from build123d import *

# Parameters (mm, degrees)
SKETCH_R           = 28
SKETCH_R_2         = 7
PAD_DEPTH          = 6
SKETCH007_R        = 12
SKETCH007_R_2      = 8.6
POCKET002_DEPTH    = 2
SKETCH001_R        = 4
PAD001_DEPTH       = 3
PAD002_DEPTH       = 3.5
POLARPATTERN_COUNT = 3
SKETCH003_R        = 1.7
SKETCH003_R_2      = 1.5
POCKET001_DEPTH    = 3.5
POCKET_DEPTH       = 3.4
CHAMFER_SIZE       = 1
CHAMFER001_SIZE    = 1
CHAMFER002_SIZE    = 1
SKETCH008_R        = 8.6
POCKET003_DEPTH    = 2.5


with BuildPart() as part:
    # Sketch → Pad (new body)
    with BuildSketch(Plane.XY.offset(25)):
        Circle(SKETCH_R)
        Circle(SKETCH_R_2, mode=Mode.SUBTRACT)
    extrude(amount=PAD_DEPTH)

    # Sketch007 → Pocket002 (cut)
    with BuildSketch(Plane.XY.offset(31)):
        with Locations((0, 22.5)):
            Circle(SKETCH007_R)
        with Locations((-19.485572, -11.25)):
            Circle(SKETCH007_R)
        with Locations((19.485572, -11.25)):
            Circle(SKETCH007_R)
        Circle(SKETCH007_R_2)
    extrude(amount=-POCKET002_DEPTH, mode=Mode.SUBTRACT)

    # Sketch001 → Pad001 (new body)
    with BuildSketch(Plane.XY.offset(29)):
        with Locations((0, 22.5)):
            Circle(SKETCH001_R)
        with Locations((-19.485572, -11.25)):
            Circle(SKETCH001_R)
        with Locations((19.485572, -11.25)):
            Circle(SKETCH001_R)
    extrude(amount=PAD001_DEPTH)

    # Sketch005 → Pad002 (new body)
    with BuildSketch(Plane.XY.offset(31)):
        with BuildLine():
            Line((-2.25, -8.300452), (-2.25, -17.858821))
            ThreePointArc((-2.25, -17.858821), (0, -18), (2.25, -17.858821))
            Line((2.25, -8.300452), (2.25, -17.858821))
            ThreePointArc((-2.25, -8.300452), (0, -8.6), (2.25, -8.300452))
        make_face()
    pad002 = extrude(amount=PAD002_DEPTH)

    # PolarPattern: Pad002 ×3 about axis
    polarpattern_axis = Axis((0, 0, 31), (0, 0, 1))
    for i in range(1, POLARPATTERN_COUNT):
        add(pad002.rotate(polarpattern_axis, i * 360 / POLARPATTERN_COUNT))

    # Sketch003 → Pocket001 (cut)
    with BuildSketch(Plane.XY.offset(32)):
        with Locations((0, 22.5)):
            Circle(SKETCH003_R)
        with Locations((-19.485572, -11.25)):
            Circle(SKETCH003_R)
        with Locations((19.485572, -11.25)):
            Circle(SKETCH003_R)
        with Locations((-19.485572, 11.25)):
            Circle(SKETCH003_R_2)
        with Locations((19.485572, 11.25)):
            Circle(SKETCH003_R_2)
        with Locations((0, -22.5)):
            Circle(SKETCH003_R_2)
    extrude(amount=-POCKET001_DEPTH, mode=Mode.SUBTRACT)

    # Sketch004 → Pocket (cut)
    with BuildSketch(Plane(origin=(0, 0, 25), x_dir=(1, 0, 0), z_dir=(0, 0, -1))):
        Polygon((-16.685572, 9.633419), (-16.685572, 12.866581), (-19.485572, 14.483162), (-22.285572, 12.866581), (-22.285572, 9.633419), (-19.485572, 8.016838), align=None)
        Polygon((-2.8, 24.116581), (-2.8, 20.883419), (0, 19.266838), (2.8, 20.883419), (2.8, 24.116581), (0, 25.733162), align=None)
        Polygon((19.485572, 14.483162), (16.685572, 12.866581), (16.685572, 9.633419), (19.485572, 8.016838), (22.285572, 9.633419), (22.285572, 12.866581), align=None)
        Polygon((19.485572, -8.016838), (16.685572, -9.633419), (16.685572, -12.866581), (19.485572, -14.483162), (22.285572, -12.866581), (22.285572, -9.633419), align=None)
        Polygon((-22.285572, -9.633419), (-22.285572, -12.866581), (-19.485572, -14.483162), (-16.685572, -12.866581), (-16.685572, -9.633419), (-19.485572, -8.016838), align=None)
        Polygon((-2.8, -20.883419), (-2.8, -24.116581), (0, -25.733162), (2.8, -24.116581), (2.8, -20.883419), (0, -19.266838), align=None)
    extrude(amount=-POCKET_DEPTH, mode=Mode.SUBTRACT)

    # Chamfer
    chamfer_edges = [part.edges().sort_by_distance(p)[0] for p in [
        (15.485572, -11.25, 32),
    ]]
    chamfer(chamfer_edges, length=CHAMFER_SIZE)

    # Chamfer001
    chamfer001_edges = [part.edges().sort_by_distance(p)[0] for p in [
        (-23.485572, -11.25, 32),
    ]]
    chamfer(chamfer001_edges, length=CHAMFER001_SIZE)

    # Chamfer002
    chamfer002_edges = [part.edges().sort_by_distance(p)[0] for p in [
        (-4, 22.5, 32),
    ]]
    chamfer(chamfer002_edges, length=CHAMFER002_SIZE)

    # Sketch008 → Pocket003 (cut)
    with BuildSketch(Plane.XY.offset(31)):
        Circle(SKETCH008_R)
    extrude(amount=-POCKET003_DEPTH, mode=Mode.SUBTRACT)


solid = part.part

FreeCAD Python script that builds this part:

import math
import FreeCAD as App
import Part
import Sketcher
from FreeCAD import Vector
Q = App.Units.Quantity


def edges_at(feature, points):
    """Names of the edges that pass closest to the given points."""
    edges = feature.Shape.Edges
    near = lambda p: min(range(len(edges)), key=lambda i: edges[i].distToShape(Part.Vertex(*p))[0])
    return sorted({f"Edge{near(p) + 1}" for p in points})

doc = App.newDocument("Part")
params = doc.addObject("Spreadsheet::Sheet", "Params")
for row, (alias, value) in enumerate([
    ("sketch1_diameter", "56 mm"),
    ("sketch1_diameter2", "14 mm"),
    ("pad1_length", "6 mm"),
    ("sketch2_diameter", "24 mm"),
    ("sketch2_diameter2", "17.2 mm"),
    ("pocket1_length", "2 mm"),
    ("sketch3_diameter", "8 mm"),
    ("pad2_length", "3 mm"),
    ("pad3_length", "3.5 mm"),
    ("sketch5_diameter", "3 mm"),
    ("sketch5_diameter2", "3.4 mm"),
    ("pocket2_length", "3.5 mm"),
    ("pocket3_length", "3.4 mm"),
    ("chamfer_size", "1 mm"),
    ("chamfer2_size", "1 mm"),
    ("chamfer3_size", "1 mm"),
    ("sketch7_diameter", "17.2 mm"),
    ("pocket4_length", "2.5 mm"),
], start=1):
    params.set(f"A{row}", alias)
    params.set(f"B{row}", "=" + value)
    params.setAlias(f"B{row}", alias)

body = doc.addObject("PartDesign::Body", "Body")

sketch1 = doc.addObject("Sketcher::SketchObject", "Sketch")
body.addObject(sketch1)
sketch1.AttachmentSupport = (doc.XY_Plane, [""])
sketch1.MapMode = "FlatFace"
sketch1.AttachmentOffset = App.Placement(Vector(0, 0, 25), App.Rotation())
sketch1.addGeometry([
    Part.Circle(Vector(0, 0, 0), Vector(0, 0, 1), 28),
    Part.Circle(Vector(0, 0, 0), Vector(0, 0, 1), 7),
], False)
sketch1.addConstraint([
    Sketcher.Constraint("Coincident", 0, 3, -1, 1),
    Sketcher.Constraint("Coincident", 1, 3, -1, 1),
    Sketcher.Constraint("Diameter", 0, 56.0),
    Sketcher.Constraint("Diameter", 1, 14.0),
])
sketch1.setExpression("Constraints[2]", "Params.sketch1_diameter")
sketch1.setExpression("Constraints[3]", "Params.sketch1_diameter2")
pad1 = doc.addObject("PartDesign::Pad", "Pad")
body.addObject(pad1)
pad1.Profile = sketch1
pad1.setExpression("Length", "Params.pad1_length")

sketch2 = doc.addObject("Sketcher::SketchObject", "Sketch001")
body.addObject(sketch2)
sketch2.AttachmentSupport = (doc.XY_Plane, [""])
sketch2.MapMode = "FlatFace"
sketch2.AttachmentOffset = App.Placement(Vector(0, 0, 31), App.Rotation())
sketch2.addGeometry([
    Part.Circle(Vector(0, 22.5, 0), Vector(0, 0, 1), 12),
    Part.Circle(Vector(-19.485572, -11.25, 0), Vector(0, 0, 1), 12),
    Part.Circle(Vector(19.485572, -11.25, 0), Vector(0, 0, 1), 12),
    Part.Circle(Vector(0, 0, 0), Vector(0, 0, 1), 8.6),
], False)
sketch2.addConstraint([
    Sketcher.Constraint("Coincident", 3, 3, -1, 1),
    Sketcher.Constraint("Equal", 0, 1),
    Sketcher.Constraint("Equal", 1, 2),
    Sketcher.Constraint("Symmetric", 1, 3, 2, 3, -2),
    Sketcher.Constraint("PointOnObject", 0, 3, -2),
    Sketcher.Constraint("Diameter", 0, 24.0),
    Sketcher.Constraint("Diameter", 3, 17.2),
    Sketcher.Constraint("DistanceY", -1, 1, 0, 3, 22.5),
    Sketcher.Constraint("DistanceY", 1, 3, -1, 1, 11.25),
    Sketcher.Constraint("DistanceX", 1, 3, -1, 1, 19.485572),
])
sketch2.setExpression("Constraints[5]", "Params.sketch2_diameter")
sketch2.setExpression("Constraints[6]", "Params.sketch2_diameter2")
pocket1 = doc.addObject("PartDesign::Pocket", "Pocket")
body.addObject(pocket1)
pocket1.Profile = sketch2
pocket1.setExpression("Length", "Params.pocket1_length")

sketch3 = doc.addObject("Sketcher::SketchObject", "Sketch002")
body.addObject(sketch3)
sketch3.AttachmentSupport = (doc.XY_Plane, [""])
sketch3.MapMode = "FlatFace"
sketch3.AttachmentOffset = App.Placement(Vector(0, 0, 29), App.Rotation())
sketch3.addGeometry([
    Part.Circle(Vector(0, 22.5, 0), Vector(0, 0, 1), 4),
    Part.Circle(Vector(-19.485572, -11.25, 0), Vector(0, 0, 1), 4),
    Part.Circle(Vector(19.485572, -11.25, 0), Vector(0, 0, 1), 4),
], False)
sketch3.addConstraint([
    Sketcher.Constraint("Equal", 0, 1),
    Sketcher.Constraint("Equal", 1, 2),
    Sketcher.Constraint("Symmetric", 1, 3, 2, 3, -2),
    Sketcher.Constraint("PointOnObject", 0, 3, -2),
    Sketcher.Constraint("Diameter", 0, 8.0),
    Sketcher.Constraint("DistanceY", -1, 1, 0, 3, 22.5),
    Sketcher.Constraint("DistanceY", 1, 3, -1, 1, 11.25),
    Sketcher.Constraint("DistanceX", 1, 3, -1, 1, 19.485572),
])
sketch3.setExpression("Constraints[4]", "Params.sketch3_diameter")
pad2 = doc.addObject("PartDesign::Pad", "Pad001")
body.addObject(pad2)
pad2.Profile = sketch3
pad2.setExpression("Length", "Params.pad2_length")

sketch4 = doc.addObject("Sketcher::SketchObject", "Sketch003")
body.addObject(sketch4)
sketch4.AttachmentSupport = (doc.XY_Plane, [""])
sketch4.MapMode = "FlatFace"
sketch4.AttachmentOffset = App.Placement(Vector(0, 0, 31), App.Rotation())
sketch4.addGeometry([
    Part.LineSegment(Vector(-2.25, -8.300452, 0), Vector(-2.25, -17.858821, 0)),
    Part.ArcOfCircle(Part.Circle(Vector(0, -0.000044, 0), Vector(0, 0, 1), 17.999956), math.radians(-97.180774), math.radians(-82.819226)),
    Part.LineSegment(Vector(2.25, -17.858821, 0), Vector(2.25, -8.300452, 0)),
    Part.ArcOfCircle(Part.Circle(Vector(0, 0.000006, 0), Vector(0, 0, 1), 8.600006), math.radians(-105.166668), math.radians(-74.833332)),
], False)
sketch4.addConstraint([
    Sketcher.Constraint("Coincident", 0, 2, 1, 1),
    Sketcher.Constraint("Coincident", 1, 2, 2, 1),
    Sketcher.Constraint("Coincident", 2, 2, 3, 2),
    Sketcher.Constraint("Coincident", 3, 1, 0, 1),
    Sketcher.Constraint("Vertical", 0),
    Sketcher.Constraint("Vertical", 2),
    Sketcher.Constraint("Coincident", 3, 3, -1, 1),
    Sketcher.Constraint("Symmetric", 0, 2, 1, 2, -2),
    Sketcher.Constraint("DistanceX", 0, 2, 1, 2, 4.5),
    Sketcher.Constraint("Radius", 1, 17.999956),
    Sketcher.Constraint("Radius", 3, 8.600006),
    Sketcher.Constraint("DistanceY", 0, 2, 0, 1, 9.558369),
])
pad3 = doc.addObject("PartDesign::Pad", "Pad002")
body.addObject(pad3)
pad3.Profile = sketch4
pad3.setExpression("Length", "Params.pad3_length")
doc.recompute()

polarpattern = doc.addObject("PartDesign::PolarPattern", "PolarPattern")
body.addObject(polarpattern)
polarpattern.Originals = [pad3]
polarpattern.Axis = (doc.Z_Axis, [""])
polarpattern.Angle = 360
polarpattern.Occurrences = 3
body.Tip = polarpattern

sketch5 = doc.addObject("Sketcher::SketchObject", "Sketch004")
body.addObject(sketch5)
sketch5.AttachmentSupport = (doc.XY_Plane, [""])
sketch5.MapMode = "FlatFace"
sketch5.AttachmentOffset = App.Placement(Vector(0, 0, 32), App.Rotation())
sketch5.addGeometry([
    Part.Circle(Vector(0, 22.5, 0), Vector(0, 0, 1), 1.7),
    Part.Circle(Vector(-19.485572, -11.25, 0), Vector(0, 0, 1), 1.7),
    Part.Circle(Vector(19.485572, -11.25, 0), Vector(0, 0, 1), 1.7),
    Part.Circle(Vector(-19.485572, 11.25, 0), Vector(0, 0, 1), 1.5),
    Part.Circle(Vector(19.485572, 11.25, 0), Vector(0, 0, 1), 1.5),
    Part.Circle(Vector(0, -22.5, 0), Vector(0, 0, 1), 1.5),
], False)
sketch5.addConstraint([
    Sketcher.Constraint("Equal", 0, 1),
    Sketcher.Constraint("Equal", 1, 2),
    Sketcher.Constraint("Equal", 3, 4),
    Sketcher.Constraint("Equal", 4, 5),
    Sketcher.Constraint("Symmetric", 2, 3, 3, 3, -1, 1),
    Sketcher.Constraint("Symmetric", 1, 3, 4, 3, -1, 1),
    Sketcher.Constraint("Symmetric", 0, 3, 5, 3, -1, 1),
    Sketcher.Constraint("Symmetric", 1, 3, 2, 3, -2),
    Sketcher.Constraint("PointOnObject", 0, 3, -2),
    Sketcher.Constraint("Diameter", 3, 3.0),
    Sketcher.Constraint("Diameter", 0, 3.4),
    Sketcher.Constraint("DistanceY", 5, 3, 0, 3, 45.0),
    Sketcher.Constraint("DistanceY", 1, 3, 3, 3, 22.5),
    Sketcher.Constraint("DistanceX", 1, 3, -1, 1, 19.485572),
])
sketch5.setExpression("Constraints[9]", "Params.sketch5_diameter")
sketch5.setExpression("Constraints[10]", "Params.sketch5_diameter2")
pocket2 = doc.addObject("PartDesign::Pocket", "Pocket001")
body.addObject(pocket2)
pocket2.Profile = sketch5
pocket2.setExpression("Length", "Params.pocket2_length")

sketch6 = doc.addObject("Sketcher::SketchObject", "Sketch005")
body.addObject(sketch6)
sketch6.AttachmentSupport = (doc.XY_Plane, [""])
sketch6.MapMode = "FlatFace"
sketch6.AttachmentOffset = App.Placement(Vector(0, 0, 25), App.Rotation())
sketch6.addGeometry([
    Part.LineSegment(Vector(-16.685572, -9.633419, 0), Vector(-16.685572, -12.866581, 0)),
    Part.LineSegment(Vector(-16.685572, -12.866581, 0), Vector(-19.485572, -14.483162, 0)),
    Part.LineSegment(Vector(-19.485572, -14.483162, 0), Vector(-22.285572, -12.866581, 0)),
    Part.LineSegment(Vector(-22.285572, -12.866581, 0), Vector(-22.285572, -9.633419, 0)),
    Part.LineSegment(Vector(-22.285572, -9.633419, 0), Vector(-19.485572, -8.016838, 0)),
    Part.LineSegment(Vector(-19.485572, -8.016838, 0), Vector(-16.685572, -9.633419, 0)),
    Part.LineSegment(Vector(-2.8, -24.116581, 0), Vector(-2.8, -20.883419, 0)),
    Part.LineSegment(Vector(-2.8, -20.883419, 0), Vector(0, -19.266838, 0)),
    Part.LineSegment(Vector(0, -19.266838, 0), Vector(2.8, -20.883419, 0)),
    Part.LineSegment(Vector(2.8, -20.883419, 0), Vector(2.8, -24.116581, 0)),
    Part.LineSegment(Vector(2.8, -24.116581, 0), Vector(0, -25.733162, 0)),
    Part.LineSegment(Vector(0, -25.733162, 0), Vector(-2.8, -24.116581, 0)),
    Part.LineSegment(Vector(19.485572, -14.483162, 0), Vector(16.685572, -12.866581, 0)),
    Part.LineSegment(Vector(16.685572, -12.866581, 0), Vector(16.685572, -9.633419, 0)),
    Part.LineSegment(Vector(16.685572, -9.633419, 0), Vector(19.485572, -8.016838, 0)),
    Part.LineSegment(Vector(19.485572, -8.016838, 0), Vector(22.285572, -9.633419, 0)),
    Part.LineSegment(Vector(22.285572, -9.633419, 0), Vector(22.285572, -12.866581, 0)),
    Part.LineSegment(Vector(22.285572, -12.866581, 0), Vector(19.485572, -14.483162, 0)),
    Part.LineSegment(Vector(19.485572, 8.016838, 0), Vector(16.685572, 9.633419, 0)),
    Part.LineSegment(Vector(16.685572, 9.633419, 0), Vector(16.685572, 12.866581, 0)),
    Part.LineSegment(Vector(16.685572, 12.866581, 0), Vector(19.485572, 14.483162, 0)),
    Part.LineSegment(Vector(19.485572, 14.483162, 0), Vector(22.285572, 12.866581, 0)),
    Part.LineSegment(Vector(22.285572, 12.866581, 0), Vector(22.285572, 9.633419, 0)),
    Part.LineSegment(Vector(22.285572, 9.633419, 0), Vector(19.485572, 8.016838, 0)),
    Part.LineSegment(Vector(-22.285572, 9.633419, 0), Vector(-22.285572, 12.866581, 0)),
    Part.LineSegment(Vector(-22.285572, 12.866581, 0), Vector(-19.485572, 14.483162, 0)),
    Part.LineSegment(Vector(-19.485572, 14.483162, 0), Vector(-16.685572, 12.866581, 0)),
    Part.LineSegment(Vector(-16.685572, 12.866581, 0), Vector(-16.685572, 9.633419, 0)),
    Part.LineSegment(Vector(-16.685572, 9.633419, 0), Vector(-19.485572, 8.016838, 0)),
    Part.LineSegment(Vector(-19.485572, 8.016838, 0), Vector(-22.285572, 9.633419, 0)),
    Part.LineSegment(Vector(-2.8, 20.883419, 0), Vector(-2.8, 24.116581, 0)),
    Part.LineSegment(Vector(-2.8, 24.116581, 0), Vector(0, 25.733162, 0)),
    Part.LineSegment(Vector(0, 25.733162, 0), Vector(2.8, 24.116581, 0)),
    Part.LineSegment(Vector(2.8, 24.116581, 0), Vector(2.8, 20.883419, 0)),
    Part.LineSegment(Vector(2.8, 20.883419, 0), Vector(0, 19.266838, 0)),
    Part.LineSegment(Vector(0, 19.266838, 0), Vector(-2.8, 20.883419, 0)),
], False)
sketch6.addConstraint([
    Sketcher.Constraint("Coincident", 0, 2, 1, 1),
    Sketcher.Constraint("Coincident", 1, 2, 2, 1),
    Sketcher.Constraint("Coincident", 2, 2, 3, 1),
    Sketcher.Constraint("Coincident", 3, 2, 4, 1),
    Sketcher.Constraint("Coincident", 4, 2, 5, 1),
    Sketcher.Constraint("Coincident", 5, 2, 0, 1),
    Sketcher.Constraint("Coincident", 6, 2, 7, 1),
    Sketcher.Constraint("Coincident", 7, 2, 8, 1),
    Sketcher.Constraint("Coincident", 8, 2, 9, 1),
    Sketcher.Constraint("Coincident", 9, 2, 10, 1),
    Sketcher.Constraint("Coincident", 10, 2, 11, 1),
    Sketcher.Constraint("Coincident", 11, 2, 6, 1),
    Sketcher.Constraint("Coincident", 12, 2, 13, 1),
    Sketcher.Constraint("Coincident", 13, 2, 14, 1),
    Sketcher.Constraint("Coincident", 14, 2, 15, 1),
    Sketcher.Constraint("Coincident", 15, 2, 16, 1),
    Sketcher.Constraint("Coincident", 16, 2, 17, 1),
    Sketcher.Constraint("Coincident", 17, 2, 12, 1),
    Sketcher.Constraint("Coincident", 18, 2, 19, 1),
    Sketcher.Constraint("Coincident", 19, 2, 20, 1),
    Sketcher.Constraint("Coincident", 20, 2, 21, 1),
    Sketcher.Constraint("Coincident", 21, 2, 22, 1),
    Sketcher.Constraint("Coincident", 22, 2, 23, 1),
    Sketcher.Constraint("Coincident", 23, 2, 18, 1),
    Sketcher.Constraint("Coincident", 24, 2, 25, 1),
    Sketcher.Constraint("Coincident", 25, 2, 26, 1),
    Sketcher.Constraint("Coincident", 26, 2, 27, 1),
    Sketcher.Constraint("Coincident", 27, 2, 28, 1),
    Sketcher.Constraint("Coincident", 28, 2, 29, 1),
    Sketcher.Constraint("Coincident", 29, 2, 24, 1),
    Sketcher.Constraint("Coincident", 30, 2, 31, 1),
    Sketcher.Constraint("Coincident", 31, 2, 32, 1),
    Sketcher.Constraint("Coincident", 32, 2, 33, 1),
    Sketcher.Constraint("Coincident", 33, 2, 34, 1),
    Sketcher.Constraint("Coincident", 34, 2, 35, 1),
    Sketcher.Constraint("Coincident", 35, 2, 30, 1),
    Sketcher.Constraint("Vertical", 0),
    Sketcher.Constraint("Vertical", 3),
    Sketcher.Constraint("Vertical", 6),
    Sketcher.Constraint("Vertical", 9),
    Sketcher.Constraint("Vertical", 13),
    Sketcher.Constraint("Vertical", 16),
    Sketcher.Constraint("Vertical", 19),
    Sketcher.Constraint("Vertical", 22),
    Sketcher.Constraint("Vertical", 24),
    Sketcher.Constraint("Vertical", 27),
    Sketcher.Constraint("Vertical", 30),
    Sketcher.Constraint("Vertical", 33),
    Sketcher.Constraint("Symmetric", 5, 2, 18, 2, -1, 1),
    Sketcher.Constraint("Symmetric", 1, 2, 20, 2, -1, 1),
    Sketcher.Constraint("Symmetric", 2, 2, 21, 2, -1, 1),
    Sketcher.Constraint("Symmetric", 4, 2, 23, 2, -1, 1),
    Sketcher.Constraint("Symmetric", 16, 2, 24, 2, -1, 1),
    Sketcher.Constraint("Symmetric", 17, 2, 25, 2, -1, 1),
    Sketcher.Constraint("Symmetric", 12, 2, 26, 2, -1, 1),
    Sketcher.Constraint("Symmetric", 14, 2, 28, 2, -1, 1),
    Sketcher.Constraint("Symmetric", 9, 2, 30, 2, -1, 1),
    Sketcher.Constraint("Symmetric", 10, 2, 31, 2, -1, 1),
    Sketcher.Constraint("Symmetric", 11, 2, 32, 2, -1, 1),
    Sketcher.Constraint("Symmetric", 7, 2, 34, 2, -1, 1),
    Sketcher.Constraint("Symmetric", 6, 2, 8, 2, -2),
    Sketcher.Constraint("Symmetric", 0, 2, 12, 2, -2),
    Sketcher.Constraint("Symmetric", 4, 2, 14, 2, -2),
    Sketcher.Constraint("Symmetric", 3, 2, 15, 2, -2),
    Sketcher.Constraint("Symmetric", 1, 2, 17, 2, -2),
    Sketcher.Constraint("PointOnObject", 7, 2, -2),
    Sketcher.Constraint("PointOnObject", 10, 2, -2),
    Sketcher.Constraint("Parallel", 1, 4),
    Sketcher.Constraint("Parallel", 2, 5),
    Sketcher.Constraint("Parallel", 4, 7),
    Sketcher.Constraint("Parallel", 5, 8),
    Sketcher.Constraint("Parallel", 7, 10),
    Sketcher.Constraint("Parallel", 8, 11),
    Sketcher.Constraint("Parallel", 10, 14),
    Sketcher.Constraint("Parallel", 14, 17),
    Sketcher.Constraint("Parallel", 17, 20),
    Sketcher.Constraint("Parallel", 20, 23),
    Sketcher.Constraint("Parallel", 25, 28),
    Sketcher.Constraint("Parallel", 26, 29),
    Sketcher.Constraint("Parallel", 31, 34),
    Sketcher.Constraint("Parallel", 32, 35),
    Sketcher.Constraint("Horizontal", 0, 2, 2, 2),
    Sketcher.Constraint("Horizontal", 3, 2, 5, 2),
    Sketcher.Constraint("Equal", 3, 6),
    Sketcher.Constraint("Equal", 5, 7),
    Sketcher.Constraint("Angle", 1, Q("-149.999996 deg")),
    Sketcher.Constraint("DistanceX", 6, 2, -1, 1, 2.8),
    Sketcher.Constraint("DistanceY", 12, 2, 18, 2, 22.5),
    Sketcher.Constraint("DistanceY", 6, 2, 5, 2, 11.25),
    Sketcher.Constraint("DistanceY", 0, 2, 0, 1, 3.233162),
    Sketcher.Constraint("DistanceX", 2, 2, -1, 1, 22.285572),
])
pocket3 = doc.addObject("PartDesign::Pocket", "Pocket002")
body.addObject(pocket3)
pocket3.Profile = sketch6
pocket3.setExpression("Length", "Params.pocket3_length")
pocket3.Reversed = True
doc.recompute()

chamfer = doc.addObject("PartDesign::Chamfer", "Chamfer")
body.addObject(chamfer)
chamfer.Base = (pocket3, edges_at(pocket3, [(15.486, -11.25, 32)]))
chamfer.setExpression("Size", "Params.chamfer_size")
doc.recompute()

chamfer2 = doc.addObject("PartDesign::Chamfer", "Chamfer001")
body.addObject(chamfer2)
chamfer2.Base = (chamfer, edges_at(chamfer, [(-23.486, -11.25, 32)]))
chamfer2.setExpression("Size", "Params.chamfer2_size")
doc.recompute()

chamfer3 = doc.addObject("PartDesign::Chamfer", "Chamfer002")
body.addObject(chamfer3)
chamfer3.Base = (chamfer2, edges_at(chamfer2, [(-4, 22.5, 32)]))
chamfer3.setExpression("Size", "Params.chamfer3_size")

sketch7 = doc.addObject("Sketcher::SketchObject", "Sketch006")
body.addObject(sketch7)
sketch7.AttachmentSupport = (doc.XY_Plane, [""])
sketch7.MapMode = "FlatFace"
sketch7.AttachmentOffset = App.Placement(Vector(0, 0, 31), App.Rotation())
sketch7.addGeometry(Part.Circle(Vector(0, 0, 0), Vector(0, 0, 1), 8.6), False)
sketch7.addConstraint([
    Sketcher.Constraint("Coincident", 0, 3, -1, 1),
    Sketcher.Constraint("Diameter", 0, 17.2),
])
sketch7.setExpression("Constraints[1]", "Params.sketch7_diameter")
pocket4 = doc.addObject("PartDesign::Pocket", "Pocket003")
body.addObject(pocket4)
pocket4.Profile = sketch7
pocket4.setExpression("Length", "Params.pocket4_length")

doc.recompute()
